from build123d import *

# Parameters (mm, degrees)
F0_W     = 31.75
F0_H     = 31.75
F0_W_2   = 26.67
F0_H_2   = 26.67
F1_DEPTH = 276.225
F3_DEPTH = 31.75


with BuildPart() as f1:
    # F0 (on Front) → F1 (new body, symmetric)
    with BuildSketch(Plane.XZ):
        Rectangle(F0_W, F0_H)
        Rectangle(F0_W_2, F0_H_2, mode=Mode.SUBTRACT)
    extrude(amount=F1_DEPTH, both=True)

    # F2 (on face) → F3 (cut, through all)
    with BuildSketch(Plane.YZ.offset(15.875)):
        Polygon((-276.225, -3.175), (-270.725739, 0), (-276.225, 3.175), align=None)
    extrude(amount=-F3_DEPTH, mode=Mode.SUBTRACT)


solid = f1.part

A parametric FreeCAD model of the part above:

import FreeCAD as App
import Part
import Sketcher
Q = App.Units.Quantity


def add_polygon(sketch, points):
    """Adds a closed chain of lines whose ends are joined by coincident constraints."""
    first, n = sketch.GeometryCount, len(points)
    for a, b in zip(points, points[1:] + points[:1]):
        sketch.addGeometry(Part.LineSegment(App.Vector(*a, 0), App.Vector(*b, 0)), False)
    for i in range(n):
        sketch.addConstraint(Sketcher.Constraint("Coincident", first + i, 2, first + (i + 1) % n, 1))

doc = App.newDocument("Part")
body = doc.addObject("PartDesign::Body", "Body")

sketch1 = body.newObject("Sketcher::SketchObject", "Sketch")
sketch1.AttachmentSupport = (doc.getObject("XZ_Plane"), [""])
sketch1.MapMode = "FlatFace"
add_polygon(sketch1, [(-16, 16), (-16, -16), (16, -16), (16, 16)])
add_polygon(sketch1, [(13, -13), (-13, -13), (-13, 13), (13, 13)])
sketch1.addConstraint(Sketcher.Constraint("Vertical", 0))
sketch1.addConstraint(Sketcher.Constraint("Horizontal", 1))
sketch1.addConstraint(Sketcher.Constraint("Vertical", 2))
sketch1.addConstraint(Sketcher.Constraint("Horizontal", 3))
sketch1.addConstraint(Sketcher.Constraint("Horizontal", 4))
sketch1.addConstraint(Sketcher.Constraint("Vertical", 5))
sketch1.addConstraint(Sketcher.Constraint("Horizontal", 6))
sketch1.addConstraint(Sketcher.Constraint("Vertical", 7))
sketch1.addConstraint(Sketcher.Constraint("Symmetric", 0, 2, 2, 2, -1, 1))
sketch1.addConstraint(Sketcher.Constraint("Symmetric", 4, 2, 6, 2, -1, 1))
sketch1.addConstraint(Sketcher.Constraint("Equal", 3, 0))
sketch1.addConstraint(Sketcher.Constraint("Equal", 6, 5))
sketch1.addConstraint(Sketcher.Constraint("DistanceX", 1, 1, 1, 2, Q("1.25 in")))
sketch1.addConstraint(Sketcher.Constraint("DistanceX", 4, 2, 4, 1, Q("1.05 in")))
pad1 = body.newObject("PartDesign::Pad", "Pad")
pad1.Profile = sketch1
pad1.Length = Q("21.75 in")
pad1.Midplane = True

sketch2 = body.newObject("Sketcher::SketchObject", "Sketch001")
sketch2.AttachmentSupport = (doc.getObject("YZ_Plane"), [""])
sketch2.MapMode = "FlatFace"
sketch2.AttachmentOffset = App.Placement(App.Vector(0, 0, 0.625 * 25.4), App.Rotation())
add_polygon(sketch2, [(-276, -3), (-271, 0), (-276, 3)])
sketch2.addConstraint(Sketcher.Constraint("Vertical", 2))
sketch2.addConstraint(Sketcher.Constraint("PointOnObject", 0, 2, -1))
sketch2.addConstraint(Sketcher.Constraint("Equal", 0, 1))
sketch2.addConstraint(Sketcher.Constraint("Angle", 0, Q("30.000001 deg")))
sketch2.addConstraint(Sketcher.Constraint("DistanceY", 2, 2, 2, 1, Q("0.25 in")))
sketch2.addConstraint(Sketcher.Constraint("DistanceX", 1, 2, -1, 1, Q("10.875 in")))
pocket1 = body.newObject("PartDesign::Pocket", "Pocket")
pocket1.Profile = sketch2
pocket1.Type = "ThroughAll"

doc.recompute()
